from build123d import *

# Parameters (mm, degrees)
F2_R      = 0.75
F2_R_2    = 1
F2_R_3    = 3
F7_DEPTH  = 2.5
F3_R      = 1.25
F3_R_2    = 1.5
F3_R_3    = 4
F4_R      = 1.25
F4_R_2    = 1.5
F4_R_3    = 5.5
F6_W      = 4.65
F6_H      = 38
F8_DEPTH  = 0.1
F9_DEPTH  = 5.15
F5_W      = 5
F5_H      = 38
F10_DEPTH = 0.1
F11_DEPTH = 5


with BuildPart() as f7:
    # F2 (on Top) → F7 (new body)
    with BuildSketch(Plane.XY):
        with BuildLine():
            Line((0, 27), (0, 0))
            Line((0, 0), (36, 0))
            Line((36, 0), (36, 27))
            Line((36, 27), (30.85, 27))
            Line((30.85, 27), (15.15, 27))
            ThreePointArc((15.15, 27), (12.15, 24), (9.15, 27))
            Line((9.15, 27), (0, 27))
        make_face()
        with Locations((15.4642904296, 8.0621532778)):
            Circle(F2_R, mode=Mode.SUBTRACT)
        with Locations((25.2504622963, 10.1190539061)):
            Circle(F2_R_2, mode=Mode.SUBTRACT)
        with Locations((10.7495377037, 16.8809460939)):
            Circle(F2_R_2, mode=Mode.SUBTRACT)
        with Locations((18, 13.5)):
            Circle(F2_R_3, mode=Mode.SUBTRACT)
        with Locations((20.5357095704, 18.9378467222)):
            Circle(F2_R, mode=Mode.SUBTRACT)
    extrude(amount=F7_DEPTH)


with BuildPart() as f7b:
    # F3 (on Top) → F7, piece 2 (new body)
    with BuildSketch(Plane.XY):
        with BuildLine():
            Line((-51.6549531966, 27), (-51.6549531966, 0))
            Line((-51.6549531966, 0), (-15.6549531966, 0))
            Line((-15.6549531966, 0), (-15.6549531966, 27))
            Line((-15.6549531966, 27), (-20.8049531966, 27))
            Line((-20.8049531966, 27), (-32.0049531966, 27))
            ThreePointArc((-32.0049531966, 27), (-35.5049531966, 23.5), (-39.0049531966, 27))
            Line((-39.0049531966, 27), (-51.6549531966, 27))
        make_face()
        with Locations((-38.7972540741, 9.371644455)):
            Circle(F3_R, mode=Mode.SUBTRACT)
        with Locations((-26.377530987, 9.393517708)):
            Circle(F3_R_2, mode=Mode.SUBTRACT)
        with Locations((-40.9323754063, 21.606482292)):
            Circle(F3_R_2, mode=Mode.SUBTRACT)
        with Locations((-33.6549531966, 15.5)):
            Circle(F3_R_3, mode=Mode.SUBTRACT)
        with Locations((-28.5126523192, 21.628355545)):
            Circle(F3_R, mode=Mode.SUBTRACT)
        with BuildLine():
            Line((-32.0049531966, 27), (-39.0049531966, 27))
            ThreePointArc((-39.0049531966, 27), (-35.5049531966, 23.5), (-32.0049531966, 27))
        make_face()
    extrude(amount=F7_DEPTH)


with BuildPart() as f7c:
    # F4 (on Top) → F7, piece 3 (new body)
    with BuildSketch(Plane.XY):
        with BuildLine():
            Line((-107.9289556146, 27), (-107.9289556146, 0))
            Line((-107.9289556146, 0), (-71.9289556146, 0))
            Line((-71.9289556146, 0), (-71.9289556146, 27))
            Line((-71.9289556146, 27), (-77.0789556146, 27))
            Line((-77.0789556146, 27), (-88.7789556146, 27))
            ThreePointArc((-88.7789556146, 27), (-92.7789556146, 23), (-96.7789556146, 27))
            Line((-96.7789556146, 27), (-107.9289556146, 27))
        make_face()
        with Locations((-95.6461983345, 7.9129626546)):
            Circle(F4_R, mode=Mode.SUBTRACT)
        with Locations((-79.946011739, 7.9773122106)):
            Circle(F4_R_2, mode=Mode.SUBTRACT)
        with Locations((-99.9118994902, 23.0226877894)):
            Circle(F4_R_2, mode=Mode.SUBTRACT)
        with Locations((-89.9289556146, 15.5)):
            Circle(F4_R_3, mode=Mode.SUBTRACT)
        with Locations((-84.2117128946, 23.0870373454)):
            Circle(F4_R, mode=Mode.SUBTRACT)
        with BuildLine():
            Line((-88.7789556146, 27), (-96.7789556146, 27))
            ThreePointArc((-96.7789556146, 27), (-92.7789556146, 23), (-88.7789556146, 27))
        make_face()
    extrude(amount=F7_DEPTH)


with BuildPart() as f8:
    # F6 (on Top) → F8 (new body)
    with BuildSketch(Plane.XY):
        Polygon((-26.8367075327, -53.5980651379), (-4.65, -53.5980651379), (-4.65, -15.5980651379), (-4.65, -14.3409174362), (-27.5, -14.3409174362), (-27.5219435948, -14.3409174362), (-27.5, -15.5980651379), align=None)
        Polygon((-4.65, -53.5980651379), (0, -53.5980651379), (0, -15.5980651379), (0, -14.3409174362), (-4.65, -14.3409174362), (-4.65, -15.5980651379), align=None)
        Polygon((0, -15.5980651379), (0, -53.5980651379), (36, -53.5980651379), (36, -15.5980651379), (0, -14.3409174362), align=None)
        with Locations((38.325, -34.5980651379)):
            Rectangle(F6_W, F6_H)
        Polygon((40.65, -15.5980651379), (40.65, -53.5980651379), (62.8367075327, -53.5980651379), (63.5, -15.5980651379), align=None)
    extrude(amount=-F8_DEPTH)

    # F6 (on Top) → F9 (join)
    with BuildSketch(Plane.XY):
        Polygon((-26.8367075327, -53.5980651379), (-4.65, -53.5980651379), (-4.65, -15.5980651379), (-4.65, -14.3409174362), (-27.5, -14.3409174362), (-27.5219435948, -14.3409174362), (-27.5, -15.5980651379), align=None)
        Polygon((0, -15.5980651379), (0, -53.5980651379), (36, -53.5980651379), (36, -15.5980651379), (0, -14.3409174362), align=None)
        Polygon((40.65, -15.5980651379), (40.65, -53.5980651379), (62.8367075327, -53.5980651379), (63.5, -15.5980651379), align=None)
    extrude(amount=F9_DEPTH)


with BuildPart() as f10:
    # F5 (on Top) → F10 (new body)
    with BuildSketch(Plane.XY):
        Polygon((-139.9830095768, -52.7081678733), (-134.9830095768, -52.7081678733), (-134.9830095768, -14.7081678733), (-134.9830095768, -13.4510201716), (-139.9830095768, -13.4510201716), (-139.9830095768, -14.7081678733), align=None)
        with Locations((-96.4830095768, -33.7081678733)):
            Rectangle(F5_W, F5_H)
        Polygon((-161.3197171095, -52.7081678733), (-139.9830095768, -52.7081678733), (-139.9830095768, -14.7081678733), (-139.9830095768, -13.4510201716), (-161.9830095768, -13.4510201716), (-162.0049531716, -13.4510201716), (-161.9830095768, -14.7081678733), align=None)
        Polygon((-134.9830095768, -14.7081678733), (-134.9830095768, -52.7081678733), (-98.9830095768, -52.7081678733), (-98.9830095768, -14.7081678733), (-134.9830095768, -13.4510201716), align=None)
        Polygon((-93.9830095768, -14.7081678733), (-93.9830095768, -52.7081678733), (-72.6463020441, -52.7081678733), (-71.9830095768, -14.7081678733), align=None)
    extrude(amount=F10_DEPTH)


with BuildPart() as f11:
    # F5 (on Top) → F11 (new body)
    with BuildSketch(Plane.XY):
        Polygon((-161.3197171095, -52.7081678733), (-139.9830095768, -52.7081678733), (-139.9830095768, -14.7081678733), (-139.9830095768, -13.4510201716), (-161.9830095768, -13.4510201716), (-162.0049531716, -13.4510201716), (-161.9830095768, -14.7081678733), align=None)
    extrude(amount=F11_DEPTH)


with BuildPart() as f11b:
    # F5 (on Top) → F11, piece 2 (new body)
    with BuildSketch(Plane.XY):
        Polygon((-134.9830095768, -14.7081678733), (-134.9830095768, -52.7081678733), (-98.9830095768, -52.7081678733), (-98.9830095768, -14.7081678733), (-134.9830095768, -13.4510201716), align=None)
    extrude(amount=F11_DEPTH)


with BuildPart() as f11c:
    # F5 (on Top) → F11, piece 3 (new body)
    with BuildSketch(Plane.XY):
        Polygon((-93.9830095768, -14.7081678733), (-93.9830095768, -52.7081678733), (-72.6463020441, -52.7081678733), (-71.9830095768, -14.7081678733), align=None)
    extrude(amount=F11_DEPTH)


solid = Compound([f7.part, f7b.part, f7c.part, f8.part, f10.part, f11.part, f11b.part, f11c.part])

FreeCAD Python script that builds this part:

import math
import FreeCAD as App
import Part
import Sketcher
Q = App.Units.Quantity


def add_polygon(sketch, points):
    """Adds a closed chain of lines whose ends are joined by coincident constraints."""
    first, n = sketch.GeometryCount, len(points)
    for a, b in zip(points, points[1:] + points[:1]):
        sketch.addGeometry(Part.LineSegment(App.Vector(*a, 0), App.Vector(*b, 0)), False)
    for i in range(n):
        sketch.addConstraint(Sketcher.Constraint("Coincident", first + i, 2, first + (i + 1) % n, 1))

doc = App.newDocument("Part")
params = doc.addObject("Spreadsheet::Sheet", "Params")
for row, (alias, value) in enumerate([
    ("sketch1_diameter", "2 mm"),
    ("sketch1_diameter2", "6 mm"),
    ("sketch1_diameter3", "1.5 mm"),
    ("sketch1_width", "36 mm"),
    ("sketch1_height", "27 mm"),
    ("pad1_length", "2.5 mm"),
    ("sketch2_diameter", "3 mm"),
    ("sketch2_diameter2", "8 mm"),
    ("sketch2_diameter3", "2.5 mm"),
    ("sketch2_width", "36 mm"),
    ("sketch2_height", "27 mm"),
    ("pad2_length", "2.5 mm"),
    ("sketch3_diameter", "3 mm"),
    ("sketch3_diameter2", "11 mm"),
    ("sketch3_diameter3", "2.5 mm"),
    ("sketch3_width", "36 mm"),
    ("sketch3_height", "27 mm"),
    ("pad3_length", "2.5 mm"),
    ("sketch4_width", "27.5 mm"),
    ("pad4_length", "0.1 mm"),
    ("sketch5_width", "36 mm"),
    ("sketch5_height", "38 mm"),
    ("sketch5_width2", "22.85 mm"),
    ("pad5_length", "5.15 mm"),
    ("sketch6_width", "27 mm"),
    ("pad6_length", "0.1 mm"),
    ("pad7_length", "5 mm"),
    ("sketch8_width", "36 mm"),
    ("sketch8_height", "38 mm"),
    ("pad8_length", "5 mm"),
    ("sketch9_width", "22 mm"),
    ("sketch9_height", "38 mm"),
    ("pad9_length", "5 mm"),
], start=1):
    params.set(f"A{row}", alias)
    params.set(f"B{row}", "=" + value)
    params.setAlias(f"B{row}", alias)

body = doc.addObject("PartDesign::Body", "Body")

sketch1 = body.newObject("Sketcher::SketchObject", "Sketch")
sketch1.AttachmentSupport = (doc.getObject("XY_Plane"), [""])
sketch1.MapMode = "FlatFace"
sketch1.addGeometry([
    Part.LineSegment(App.Vector(0, 27, 0), App.Vector(0, 0, 0)),
    Part.LineSegment(App.Vector(0, 0, 0), App.Vector(36, 0, 0)),
    Part.LineSegment(App.Vector(36, 0, 0), App.Vector(36, 27, 0)),
    Part.LineSegment(App.Vector(36, 27, 0), App.Vector(15.2, 27, 0)),
    Part.ArcOfCircle(Part.Circle(App.Vector(12.2, 27, 0), App.Vector(0, 0, 1), 3), math.radians(180), math.radians(360)),
    Part.LineSegment(App.Vector(9.2, 27, 0), App.Vector(0, 27, 0)),
    Part.Circle(App.Vector(15.5, 8.1, 0), App.Vector(0, 0, 1), 0.8),
    Part.Circle(App.Vector(25.3, 10.1, 0), App.Vector(0, 0, 1), 1),
    Part.Circle(App.Vector(18, 13.5, 0), App.Vector(0, 0, 1), 3),
    Part.Circle(App.Vector(10.7, 16.9, 0), App.Vector(0, 0, 1), 1),
    Part.Circle(App.Vector(20.5, 18.9, 0), App.Vector(0, 0, 1), 0.8),
], False)
sketch1.addConstraint([
    Sketcher.Constraint("Coincident", 0, 2, 1, 1),
    Sketcher.Constraint("Coincident", 1, 2, 2, 1),
    Sketcher.Constraint("Coincident", 2, 2, 3, 1),
    Sketcher.Constraint("Coincident", 3, 2, 4, 2),
    Sketcher.Constraint("Coincident", 4, 1, 5, 1),
    Sketcher.Constraint("Coincident", 5, 2, 0, 1),
    Sketcher.Constraint("Vertical", 0),
    Sketcher.Constraint("Horizontal", 1),
    Sketcher.Constraint("Vertical", 2),
    Sketcher.Constraint("Horizontal", 3),
    Sketcher.Constraint("Horizontal", 5),
    Sketcher.Constraint("Coincident", 0, 2, -1, 1),
    Sketcher.Constraint("Equal", 4, 8),
    Sketcher.Constraint("Equal", 7, 9),
    Sketcher.Constraint("Equal", 6, 10),
    Sketcher.Constraint("Horizontal", 4, 3, 2, 2),
    Sketcher.Constraint("Horizontal", 3, 2, 4, 1),
    Sketcher.Constraint("Diameter", 7, 2.0),
    Sketcher.Constraint("Diameter", 8, 6.0),
    Sketcher.Constraint("Diameter", 6, 1.5),
    Sketcher.Constraint("DistanceX", 1, 1, 1, 2, 36.0),
    Sketcher.Constraint("DistanceY", 0, 2, 0, 1, 27.0),
    Sketcher.Constraint("DistanceX", -1, 1, 8, 3, 18.0),
    Sketcher.Constraint("DistanceX", 3, 2, 3, 1, 20.85),
    Sketcher.Constraint("DistanceY", -1, 1, 8, 3, 13.5),
    Sketcher.Constraint("DistanceY", 6, 3, 7, 3, 2.056901),
    Sketcher.Constraint("DistanceY", 9, 3, 10, 3, 2.056901),
    Sketcher.Constraint("DistanceX", -1, 1, 6, 3, 15.46429),
    Sketcher.Constraint("DistanceX", -1, 1, 10, 3, 20.53571),
    Sketcher.Constraint("DistanceX", 6, 3, 7, 3, 9.786172),
    Sketcher.Constraint("DistanceX", 9, 3, 10, 3, 9.786172),
    Sketcher.Constraint("DistanceY", -1, 1, 6, 3, 8.062153),
    Sketcher.Constraint("DistanceY", -1, 1, 9, 3, 16.880946),
])
sketch1.setExpression("Constraints[17]", "Params.sketch1_diameter")
sketch1.setExpression("Constraints[18]", "Params.sketch1_diameter2")
sketch1.setExpression("Constraints[19]", "Params.sketch1_diameter3")
sketch1.setExpression("Constraints[20]", "Params.sketch1_width")
sketch1.setExpression("Constraints[21]", "Params.sketch1_height")
pad1 = body.newObject("PartDesign::Pad", "Pad")
pad1.Profile = sketch1
pad1.setExpression("Length", "Params.pad1_length")
body2 = doc.addObject("PartDesign::Body", "Body001")

sketch2 = body2.newObject("Sketcher::SketchObject", "Sketch001")
sketch2.AttachmentSupport = (doc.getObject("XY_Plane001"), [""])
sketch2.MapMode = "FlatFace"
add_polygon(sketch2, [(-51.7, 27), (-51.7, 0), (-15.7, 0), (-15.7, 27)])
sketch2.addGeometry(Part.Circle(App.Vector(-38.8, 9.4, 0), App.Vector(0, 0, 1), 1.2), False)
sketch2.addGeometry(Part.Circle(App.Vector(-26.4, 9.4, 0), App.Vector(0, 0, 1), 1.5), False)
sketch2.addGeometry(Part.Circle(App.Vector(-40.9, 21.6, 0), App.Vector(0, 0, 1), 1.5), False)
sketch2.addGeometry(Part.Circle(App.Vector(-33.7, 15.5, 0), App.Vector(0, 0, 1), 4), False)
sketch2.addGeometry(Part.Circle(App.Vector(-28.5, 21.6, 0), App.Vector(0, 0, 1), 1.2), False)
sketch2.addConstraint([
    Sketcher.Constraint("Vertical", 0),
    Sketcher.Constraint("Horizontal", 1),
    Sketcher.Constraint("Vertical", 2),
    Sketcher.Constraint("Horizontal", 3),
    Sketcher.Constraint("Equal", 5, 6),
    Sketcher.Constraint("Equal", 4, 8),
    Sketcher.Constraint("PointOnObject", 0, 2, -1),
    Sketcher.Constraint("Diameter", 5, 3.0),
    Sketcher.Constraint("Diameter", 7, 8.0),
    Sketcher.Constraint("Diameter", 4, 2.5),
    Sketcher.Constraint("DistanceX", 1, 1, 1, 2, 36.0),
    Sketcher.Constraint("DistanceY", 0, 2, 0, 1, 27.0),
    Sketcher.Constraint("DistanceX", 0, 2, 7, 3, 18.0),
    Sketcher.Constraint("DistanceY", -1, 1, 7, 3, 15.5),
    Sketcher.Constraint("DistanceX", 4, 3, 7, 3, 5.142301),
    Sketcher.Constraint("DistanceX", 7, 3, 8, 3, 5.142301),
    Sketcher.Constraint("DistanceX", 5, 3, -1, 1, 26.377531),
    Sketcher.Constraint("DistanceX", 6, 3, 4, 3, 2.135121),
    Sketcher.Constraint("DistanceX", 8, 3, 5, 3, 2.135121),
    Sketcher.Constraint("DistanceY", 4, 3, 8, 3, 12.256711),
    Sketcher.Constraint("DistanceY", -1, 1, 4, 3, 9.371644),
    Sketcher.Constraint("DistanceY", -1, 1, 5, 3, 9.393518),
    Sketcher.Constraint("DistanceY", -1, 1, 6, 3, 21.606482),
])
sketch2.setExpression("Constraints[11]", "Params.sketch2_diameter")
sketch2.setExpression("Constraints[12]", "Params.sketch2_diameter2")
sketch2.setExpression("Constraints[13]", "Params.sketch2_diameter3")
sketch2.setExpression("Constraints[14]", "Params.sketch2_width")
sketch2.setExpression("Constraints[15]", "Params.sketch2_height")
pad2 = body2.newObject("PartDesign::Pad", "Pad001")
pad2.Profile = sketch2
pad2.setExpression("Length", "Params.pad2_length")
body3 = doc.addObject("PartDesign::Body", "Body002")

sketch3 = body3.newObject("Sketcher::SketchObject", "Sketch002")
sketch3.AttachmentSupport = (doc.getObject("XY_Plane002"), [""])
sketch3.MapMode = "FlatFace"
add_polygon(sketch3, [(-107.9, 27), (-107.9, 0), (-71.9, 0), (-71.9, 27)])
sketch3.addGeometry(Part.Circle(App.Vector(-95.6, 7.9, 0), App.Vector(0, 0, 1), 1.2), False)
sketch3.addGeometry(Part.Circle(App.Vector(-79.9, 8, 0), App.Vector(0, 0, 1), 1.5), False)
sketch3.addGeometry(Part.Circle(App.Vector(-99.9, 23, 0), App.Vector(0, 0, 1), 1.5), False)
sketch3.addGeometry(Part.Circle(App.Vector(-89.9, 15.5, 0), App.Vector(0, 0, 1), 5.5), False)
sketch3.addGeometry(Part.Circle(App.Vector(-84.2, 23.1, 0), App.Vector(0, 0, 1), 1.2), False)
sketch3.addConstraint([
    Sketcher.Constraint("Vertical", 0),
    Sketcher.Constraint("Horizontal", 1),
    Sketcher.Constraint("Vertical", 2),
    Sketcher.Constraint("Horizontal", 3),
    Sketcher.Constraint("Equal", 5, 6),
    Sketcher.Constraint("Equal", 4, 8),
    Sketcher.Constraint("PointOnObject", 0, 2, -1),
    Sketcher.Constraint("Diameter", 5, 3.0),
    Sketcher.Constraint("Diameter", 7, 11.0),
    Sketcher.Constraint("Diameter", 4, 2.5),
    Sketcher.Constraint("DistanceX", 1, 1, 1, 2, 36.0),
    Sketcher.Constraint("DistanceY", 0, 2, 0, 1, 27.0),
    Sketcher.Constraint("DistanceX", 0, 2, 7, 3, 18.0),
    Sketcher.Constraint("DistanceY", -1, 1, 7, 3, 15.5),
    Sketcher.Constraint("DistanceX", 4, 3, -1, 1, 95.646198),
    Sketcher.Constraint("DistanceX", 6, 3, -1, 1, 99.911899),
    Sketcher.Constraint("DistanceX", 8, 3, 5, 3, 4.265701),
    Sketcher.Constraint("DistanceX", 5, 3, -1, 1, 79.946012),
    Sketcher.Constraint("DistanceY", 4, 3, 5, 3, 0.06435),
    Sketcher.Constraint("DistanceY", 6, 3, 8, 3, 0.06435),
    Sketcher.Constraint("DistanceY", -1, 1, 4, 3, 7.912963),
    Sketcher.Constraint("DistanceY", -1, 1, 6, 3, 23.022688),
    Sketcher.Constraint("DistanceX", 7, 3, -1, 1, 89.928956),
])
sketch3.setExpression("Constraints[11]", "Params.sketch3_diameter")
sketch3.setExpression("Constraints[12]", "Params.sketch3_diameter2")
sketch3.setExpression("Constraints[13]", "Params.sketch3_diameter3")
sketch3.setExpression("Constraints[14]", "Params.sketch3_width")
sketch3.setExpression("Constraints[15]", "Params.sketch3_height")
pad3 = body3.newObject("PartDesign::Pad", "Pad002")
pad3.Profile = sketch3
pad3.setExpression("Length", "Params.pad3_length")
body4 = doc.addObject("PartDesign::Body", "Body003")

sketch4 = body4.newObject("Sketcher::SketchObject", "Sketch003")
sketch4.AttachmentSupport = (doc.getObject("XY_Plane003"), [""])
sketch4.MapMode = "FlatFace"
add_polygon(sketch4, [(-26.8, -53.6), (62.8, -53.6), (63.5, -15.6), (36, -15.6), (0, -14.3), (-27.5, -14.3), (-27.5, -15.6)])
sketch4.addConstraint([
    Sketcher.Constraint("Horizontal", 0),
    Sketcher.Constraint("Horizontal", 2),
    Sketcher.Constraint("Horizontal", 4),
    Sketcher.Constraint("PointOnObject", 3, 2, -2),
    Sketcher.Constraint("Parallel", 5, 6),
    Sketcher.Constraint("Horizontal", 2, 2, 5, 2),
    Sketcher.Constraint("Equal", 1, 6),
    Sketcher.Constraint("Angle", 1, Q("89 deg")),
    Sketcher.Constraint("Angle", 3, Q("178 deg")),
    Sketcher.Constraint("DistanceX", 2, 2, 2, 1, 27.5),
    Sketcher.Constraint("DistanceX", -1, 1, 2, 2, 36.0),
    Sketcher.Constraint("DistanceY", 0, 2, 1, 2, 38.0),
    Sketcher.Constraint("DistanceX", 5, 2, 1, 2, 91.0),
    Sketcher.Constraint("DistanceY", 0, 2, -1, 1, 53.598065),
])
sketch4.setExpression("Constraints[16]", "Params.sketch4_width")
pad4 = body4.newObject("PartDesign::Pad", "Pad003")
pad4.Profile = sketch4
pad4.setExpression("Length", "Params.pad4_length")
pad4.Reversed = True

sketch5 = body4.newObject("Sketcher::SketchObject", "Sketch004")
sketch5.AttachmentSupport = (doc.getObject("XY_Plane003"), [""])
sketch5.MapMode = "FlatFace"
add_polygon(sketch5, [(-26.8, -53.6), (-4.7, -53.6), (-4.7, -14.3), (-27.5, -14.3), (-27.5, -15.6)])
add_polygon(sketch5, [(0, -53.6), (36, -53.6), (36, -15.6), (0, -14.3)])
add_polygon(sketch5, [(40.6, -15.6), (40.6, -53.6), (62.8, -53.6), (63.5, -15.6)])
sketch5.addConstraint([
    Sketcher.Constraint("Horizontal", 0),
    Sketcher.Constraint("Vertical", 1),
    Sketcher.Constraint("Horizontal", 2),
    Sketcher.Constraint("Horizontal", 5),
    Sketcher.Constraint("Vertical", 6),
    Sketcher.Constraint("Vertical", 8),
    Sketcher.Constraint("Vertical", 9),
    Sketcher.Constraint("Horizontal", 10),
    Sketcher.Constraint("Horizontal", 12),
    Sketcher.Constraint("PointOnObject", 7, 2, -2),
    Sketcher.Constraint("Parallel", 3, 4),
    Sketcher.Constraint("Horizontal", 4, 2, 5, 2),
    Sketcher.Constraint("Horizontal", 3, 2, 6, 2),
    Sketcher.Constraint("Horizontal", 2, 2, 7, 2),
    Sketcher.Constraint("Horizontal", 8, 2, 9, 2),
    Sketcher.Constraint("Horizontal", 6, 2, 11, 2),
    Sketcher.Constraint("Equal", 0, 10),
    Sketcher.Constraint("Equal", 4, 11),
    Sketcher.Constraint("DistanceX", 5, 1, 5, 2, 36.0),
    Sketcher.Constraint("DistanceY", 6, 1, 6, 2, 38.0),
    Sketcher.Constraint("Angle", 3, Q("-89 deg")),
    Sketcher.Constraint("Angle", 7, Q("178 deg")),
    Sketcher.Constraint("DistanceX", 12, 2, 12, 1, 22.85),
    Sketcher.Constraint("DistanceX", 3, 2, -1, 1, 27.5),
    Sketcher.Constraint("DistanceX", -1, 1, 11, 2, 63.5),
    Sketcher.Constraint("DistanceY", 0, 2, -1, 1, 53.598065),
])
sketch5.setExpression("Constraints[31]", "Params.sketch5_width")
sketch5.setExpression("Constraints[32]", "Params.sketch5_height")
sketch5.setExpression("Constraints[35]", "Params.sketch5_width2")
pad5 = body4.newObject("PartDesign::Pad", "Pad004")
pad5.Profile = sketch5
pad5.setExpression("Length", "Params.pad5_length")
body5 = doc.addObject("PartDesign::Body", "Body004")

sketch6 = body5.newObject("Sketcher::SketchObject", "Sketch005")
sketch6.AttachmentSupport = (doc.getObject("XY_Plane004"), [""])
sketch6.MapMode = "FlatFace"
add_polygon(sketch6, [(-135, -13.5), (-162, -13.5), (-162, -14.7), (-161.3, -52.7), (-72.6, -52.7), (-72, -14.7), (-99, -14.7)])
sketch6.addConstraint([
    Sketcher.Constraint("Horizontal", 0),
    Sketcher.Constraint("Horizontal", 3),
    Sketcher.Constraint("Horizontal", 5),
    Sketcher.Constraint("Parallel", 1, 2),
    Sketcher.Constraint("Horizontal", 1, 2, 4, 2),
    Sketcher.Constraint("Equal", 2, 4),
    Sketcher.Constraint("DistanceX", 5, 2, 5, 1, 27.0),
    Sketcher.Constraint("Angle", 1, Q("-89 deg")),
    Sketcher.Constraint("Angle", 6, Q("178 deg")),
    Sketcher.Constraint("DistanceY", 2, 2, 1, 2, 38.0),
    Sketcher.Constraint("DistanceX", 1, 2, 4, 2, 90.0),
    Sketcher.Constraint("DistanceX", 1, 2, 6, 2, 27.0),
    Sketcher.Constraint("DistanceY", 0, 2, -1, 1, 13.45102),
    Sketcher.Constraint("DistanceX", 1, 2, -1, 1, 161.98301),
])
sketch6.setExpression("Constraints[13]", "Params.sketch6_width")
pad6 = body5.newObject("PartDesign::Pad", "Pad005")
pad6.Profile = sketch6
pad6.setExpression("Length", "Params.pad6_length")
body6 = doc.addObject("PartDesign::Body", "Body005")

sketch7 = body6.newObject("Sketcher::SketchObject", "Sketch006")
sketch7.AttachmentSupport = (doc.getObject("XY_Plane005"), [""])
sketch7.MapMode = "FlatFace"
add_polygon(sketch7, [(-161.3, -52.7), (-140, -52.7), (-140, -13.5), (-162, -13.5), (-162, -14.7)])
sketch7.addConstraint([
    Sketcher.Constraint("Horizontal", 0),
    Sketcher.Constraint("Vertical", 1),
    Sketcher.Constraint("Horizontal", 2),
    Sketcher.Constraint("Parallel", 3, 4),
    Sketcher.Constraint("Angle", 3, Q("-89 deg")),
    Sketcher.Constraint("DistanceX", 3, 2, 1, 2, 22.0),
    Sketcher.Constraint("DistanceY", 0, 2, 3, 2, 38.0),
    Sketcher.Constraint("Distance", 3, 1.257339),
    Sketcher.Constraint("DistanceX", 0, 2, -1, 1, 139.98301),
    Sketcher.Constraint("DistanceY", 1, 2, -1, 1, 13.45102),
])
pad7 = body6.newObject("PartDesign::Pad", "Pad006")
pad7.Profile = sketch7
pad7.setExpression("Length", "Params.pad7_length")
body7 = doc.addObject("PartDesign::Body", "Body006")

sketch8 = body7.newObject("Sketcher::SketchObject", "Sketch007")
sketch8.AttachmentSupport = (doc.getObject("XY_Plane006"), [""])
sketch8.MapMode = "FlatFace"
add_polygon(sketch8, [(-135, -53), (-99, -53), (-99, -15), (-135, -13)])
sketch8.addConstraint([
    Sketcher.Constraint("Horizontal", 0),
    Sketcher.Constraint("Vertical", 1),
    Sketcher.Constraint("Vertical", 3),
    Sketcher.Constraint("DistanceX", 0, 1, 0, 2, 36.0),
    Sketcher.Constraint("DistanceY", 1, 1, 1, 2, 38.0),
    Sketcher.Constraint("Angle", 2, Q("178 deg")),
    Sketcher.Constraint("DistanceX", 0, 2, -1, 1, 98.98301),
    Sketcher.Constraint("DistanceY", 2, 2, -1, 1, 13.45102),
])
sketch8.setExpression("Constraints[7]", "Params.sketch8_width")
sketch8.setExpression("Constraints[8]", "Params.sketch8_height")
pad8 = body7.newObject("PartDesign::Pad", "Pad007")
pad8.Profile = sketch8
pad8.setExpression("Length", "Params.pad8_length")
body8 = doc.addObject("PartDesign::Body", "Body007")

sketch9 = body8.newObject("Sketcher::SketchObject", "Sketch008")
sketch9.AttachmentSupport = (doc.getObject("XY_Plane007"), [""])
sketch9.MapMode = "FlatFace"
add_polygon(sketch9, [(-94, -15), (-94, -53), (-73, -53), (-72, -15)])
sketch9.addConstraint([
    Sketcher.Constraint("Vertical", 0),
    Sketcher.Constraint("Horizontal", 1),
    Sketcher.Constraint("Horizontal", 3),
    Sketcher.Constraint("DistanceX", 3, 2, 3, 1, 22.0),
    Sketcher.Constraint("DistanceY", 0, 2, 0, 1, 38.0),
    Sketcher.Constraint("Angle", 2, Q("89 deg")),
    Sketcher.Constraint("DistanceX", 0, 2, -1, 1, 93.98301),
    Sketcher.Constraint("DistanceY", 0, 2, -1, 1, 52.708168),
])
sketch9.setExpression("Constraints[7]", "Params.sketch9_width")
sketch9.setExpression("Constraints[8]", "Params.sketch9_height")
pad9 = body8.newObject("PartDesign::Pad", "Pad008")
pad9.Profile = sketch9
pad9.setExpression("Length", "Params.pad9_length")

doc.recompute()
